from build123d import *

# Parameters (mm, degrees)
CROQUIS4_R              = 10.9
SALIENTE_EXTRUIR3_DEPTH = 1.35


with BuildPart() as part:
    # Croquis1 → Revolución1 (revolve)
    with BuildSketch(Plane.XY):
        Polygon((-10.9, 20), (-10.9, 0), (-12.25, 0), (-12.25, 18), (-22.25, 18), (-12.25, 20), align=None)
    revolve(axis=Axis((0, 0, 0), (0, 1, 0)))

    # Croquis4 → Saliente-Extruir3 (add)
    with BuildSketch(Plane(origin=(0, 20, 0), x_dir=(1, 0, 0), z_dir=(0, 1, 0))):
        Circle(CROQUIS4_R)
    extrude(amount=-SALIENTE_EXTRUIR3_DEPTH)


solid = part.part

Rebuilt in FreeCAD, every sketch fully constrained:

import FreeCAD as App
import Part
import Sketcher

V = App.Vector
Q = App.Units.Quantity


def add_polygon(sketch, points):
    """Adds a closed chain of lines whose ends are joined by coincident constraints."""
    first, n = sketch.GeometryCount, len(points)
    for a, b in zip(points, points[1:] + points[:1]):
        sketch.addGeometry(Part.LineSegment(App.Vector(*a, 0), App.Vector(*b, 0)), False)
    for i in range(n):
        sketch.addConstraint(Sketcher.Constraint("Coincident", first + i, 2, first + (i + 1) % n, 1))

doc = App.newDocument("Part")
params = doc.addObject("Spreadsheet::Sheet", "Params")
for row, (alias, value) in enumerate([
    ("sketch1_width", "10 mm"),
    ("sketch1_height", "20 mm"),
    ("sketch1_height2", "18 mm"),
    ("sketch1_width2", "1.35 mm"),
    ("revolution_angle", "360 deg"),
    ("sketch2_diameter", "21.8 mm"),
    ("pad1_length", "1.35 mm"),
], start=1):
    params.set(f"A{row}", alias)
    params.set(f"B{row}", "=" + value)
    params.setAlias(f"B{row}", alias)

body = doc.addObject("PartDesign::Body", "Body")

# Sketch on XY plane
sketch1 = body.newObject("Sketcher::SketchObject", "Sketch")
sketch1.AttachmentSupport = (doc.getObject("XY_Plane"), [""])
sketch1.MapMode = "FlatFace"
add_polygon(sketch1, [(-10.9, 0), (-10.9, 20), (-12.2, 20), (-22.2, 18), (-12.2, 18), (-12.2, 0)])  # lines 0-5
sketch1.addConstraint(Sketcher.Constraint("Vertical", 0))
sketch1.addConstraint(Sketcher.Constraint("Horizontal", 1))
sketch1.addConstraint(Sketcher.Constraint("Horizontal", 3))
sketch1.addConstraint(Sketcher.Constraint("Vertical", 4))
sketch1.addConstraint(Sketcher.Constraint("Horizontal", 5))
sketch1.addConstraint(Sketcher.Constraint("PointOnObject", 4, 2, -1))
sketch1.addConstraint(Sketcher.Constraint("Vertical", 1, 2, 3, 2))
sketch1.addConstraint(Sketcher.Constraint("DistanceX", 3, 1, 3, 2, Q("10 mm")))
sketch1.addConstraint(Sketcher.Constraint("DistanceY", 0, 1, 0, 2, Q("20 mm")))
sketch1.addConstraint(Sketcher.Constraint("DistanceY", 4, 2, 4, 1, Q("18 mm")))
sketch1.addConstraint(Sketcher.Constraint("DistanceX", 1, 2, 1, 1, Q("1.35 mm")))
sketch1.addConstraint(Sketcher.Constraint("DistanceX", 0, 2, -1, 1, Q("10.9 mm")))
sketch1.setExpression("Constraints[13]", "Params.sketch1_width")
sketch1.setExpression("Constraints[14]", "Params.sketch1_height")
sketch1.setExpression("Constraints[15]", "Params.sketch1_height2")
sketch1.setExpression("Constraints[16]", "Params.sketch1_width2")
revolution = body.newObject("PartDesign::Revolution", "Revolution")
revolution.Profile = sketch1
revolution.ReferenceAxis = (sketch1, ["V_Axis"])
revolution.setExpression("Angle", "Params.revolution_angle")

# Sketch on XZ plane
sketch2 = body.newObject("Sketcher::SketchObject", "Sketch001")
sketch2.AttachmentSupport = (doc.getObject("XZ_Plane"), [""])
sketch2.MapMode = "FlatFace"
sketch2.AttachmentOffset = App.Placement(V(0, 0, -20), App.Rotation())
sketch2.addGeometry(Part.Circle(V(0, 0, 0), V(0, 0, 1), 11), False)
sketch2.addConstraint(Sketcher.Constraint("Coincident", 0, 3, -1, 1))
sketch2.addConstraint(Sketcher.Constraint("Diameter", 0, Q("21.8 mm")))
sketch2.setExpression("Constraints[1]", "Params.sketch2_diameter")
pad1 = body.newObject("PartDesign::Pad", "Pad")
pad1.Profile = sketch2
pad1.setExpression("Length", "Params.pad1_length")

doc.recompute()
